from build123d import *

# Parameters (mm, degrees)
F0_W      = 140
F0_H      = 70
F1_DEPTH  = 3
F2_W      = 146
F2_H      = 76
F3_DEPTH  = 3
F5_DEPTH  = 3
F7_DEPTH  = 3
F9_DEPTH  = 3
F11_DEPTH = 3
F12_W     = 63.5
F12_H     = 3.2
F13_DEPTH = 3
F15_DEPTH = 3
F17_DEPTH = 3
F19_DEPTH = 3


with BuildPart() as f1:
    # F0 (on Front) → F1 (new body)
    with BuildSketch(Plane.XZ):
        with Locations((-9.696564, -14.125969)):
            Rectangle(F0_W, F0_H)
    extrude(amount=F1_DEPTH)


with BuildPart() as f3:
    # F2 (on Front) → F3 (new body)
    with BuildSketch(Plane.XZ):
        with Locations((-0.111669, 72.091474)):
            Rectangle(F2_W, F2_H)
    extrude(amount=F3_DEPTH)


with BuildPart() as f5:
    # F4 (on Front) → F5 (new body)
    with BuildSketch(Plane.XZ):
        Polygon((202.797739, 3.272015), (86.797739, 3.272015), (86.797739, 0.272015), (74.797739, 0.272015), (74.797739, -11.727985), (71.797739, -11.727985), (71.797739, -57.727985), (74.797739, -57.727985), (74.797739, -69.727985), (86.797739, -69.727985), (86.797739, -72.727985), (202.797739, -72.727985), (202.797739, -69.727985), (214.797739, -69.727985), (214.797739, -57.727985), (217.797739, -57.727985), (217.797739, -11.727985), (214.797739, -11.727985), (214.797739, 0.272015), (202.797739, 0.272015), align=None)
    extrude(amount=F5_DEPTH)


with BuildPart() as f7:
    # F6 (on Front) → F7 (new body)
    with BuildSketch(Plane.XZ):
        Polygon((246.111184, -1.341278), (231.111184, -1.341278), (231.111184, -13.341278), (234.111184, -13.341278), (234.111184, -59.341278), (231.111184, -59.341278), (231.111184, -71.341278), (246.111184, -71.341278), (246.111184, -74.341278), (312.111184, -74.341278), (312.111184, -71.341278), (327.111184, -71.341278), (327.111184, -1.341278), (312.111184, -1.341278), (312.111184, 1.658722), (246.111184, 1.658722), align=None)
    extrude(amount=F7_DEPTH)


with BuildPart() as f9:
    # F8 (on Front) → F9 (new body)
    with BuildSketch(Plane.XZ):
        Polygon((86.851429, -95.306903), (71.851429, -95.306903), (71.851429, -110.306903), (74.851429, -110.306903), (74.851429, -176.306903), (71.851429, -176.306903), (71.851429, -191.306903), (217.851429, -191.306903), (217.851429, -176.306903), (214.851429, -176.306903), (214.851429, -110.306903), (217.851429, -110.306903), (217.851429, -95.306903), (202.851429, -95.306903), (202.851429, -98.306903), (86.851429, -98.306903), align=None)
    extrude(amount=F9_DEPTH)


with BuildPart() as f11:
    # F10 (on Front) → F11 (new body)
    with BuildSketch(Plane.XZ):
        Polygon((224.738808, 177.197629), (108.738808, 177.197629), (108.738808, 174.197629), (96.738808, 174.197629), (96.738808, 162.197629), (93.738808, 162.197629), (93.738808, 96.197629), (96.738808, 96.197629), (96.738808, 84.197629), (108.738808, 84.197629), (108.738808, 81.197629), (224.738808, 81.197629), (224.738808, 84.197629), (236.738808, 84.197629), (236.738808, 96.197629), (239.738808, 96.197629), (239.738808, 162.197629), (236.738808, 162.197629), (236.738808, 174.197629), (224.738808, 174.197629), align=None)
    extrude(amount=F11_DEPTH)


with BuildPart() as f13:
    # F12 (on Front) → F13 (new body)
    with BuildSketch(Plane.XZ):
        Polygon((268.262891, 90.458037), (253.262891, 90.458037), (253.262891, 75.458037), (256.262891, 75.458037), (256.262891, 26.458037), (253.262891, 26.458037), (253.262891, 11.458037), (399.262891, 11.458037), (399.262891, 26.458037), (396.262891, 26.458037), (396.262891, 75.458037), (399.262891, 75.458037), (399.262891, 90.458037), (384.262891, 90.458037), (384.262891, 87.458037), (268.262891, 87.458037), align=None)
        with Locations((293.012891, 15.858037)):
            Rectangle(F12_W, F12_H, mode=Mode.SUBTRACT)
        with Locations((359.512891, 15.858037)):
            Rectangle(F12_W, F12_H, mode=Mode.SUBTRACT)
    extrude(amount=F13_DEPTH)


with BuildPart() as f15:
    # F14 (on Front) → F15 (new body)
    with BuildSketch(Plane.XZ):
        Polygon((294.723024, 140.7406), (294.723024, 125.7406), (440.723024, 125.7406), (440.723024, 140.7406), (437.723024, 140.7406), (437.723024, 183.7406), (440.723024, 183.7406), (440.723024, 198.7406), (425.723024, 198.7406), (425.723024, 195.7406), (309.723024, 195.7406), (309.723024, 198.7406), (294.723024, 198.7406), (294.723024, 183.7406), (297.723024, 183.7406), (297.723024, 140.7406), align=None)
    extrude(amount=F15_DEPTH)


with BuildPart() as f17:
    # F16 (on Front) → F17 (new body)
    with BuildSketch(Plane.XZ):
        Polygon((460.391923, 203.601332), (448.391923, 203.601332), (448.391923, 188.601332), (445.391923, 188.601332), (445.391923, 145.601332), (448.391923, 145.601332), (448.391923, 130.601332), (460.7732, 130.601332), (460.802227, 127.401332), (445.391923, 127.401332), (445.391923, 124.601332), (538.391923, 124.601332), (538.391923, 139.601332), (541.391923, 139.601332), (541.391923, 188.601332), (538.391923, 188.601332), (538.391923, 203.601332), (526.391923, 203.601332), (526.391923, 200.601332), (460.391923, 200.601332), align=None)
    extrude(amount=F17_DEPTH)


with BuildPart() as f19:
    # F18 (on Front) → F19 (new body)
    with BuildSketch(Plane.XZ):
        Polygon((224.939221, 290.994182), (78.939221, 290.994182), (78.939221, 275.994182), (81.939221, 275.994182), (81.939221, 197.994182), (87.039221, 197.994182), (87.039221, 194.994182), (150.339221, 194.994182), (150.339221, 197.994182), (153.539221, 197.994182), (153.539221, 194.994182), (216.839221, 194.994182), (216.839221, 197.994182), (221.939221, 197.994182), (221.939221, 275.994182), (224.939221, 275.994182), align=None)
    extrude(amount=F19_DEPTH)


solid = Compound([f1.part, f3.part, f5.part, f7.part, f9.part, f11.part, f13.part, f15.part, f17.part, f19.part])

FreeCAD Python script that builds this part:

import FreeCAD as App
import Part
import Sketcher


def add_polygon(sketch, points):
    """Adds a closed chain of lines whose ends are joined by coincident constraints."""
    first, n = sketch.GeometryCount, len(points)
    for a, b in zip(points, points[1:] + points[:1]):
        sketch.addGeometry(Part.LineSegment(App.Vector(*a, 0), App.Vector(*b, 0)), False)
    for i in range(n):
        sketch.addConstraint(Sketcher.Constraint("Coincident", first + i, 2, first + (i + 1) % n, 1))

doc = App.newDocument("Part")
body = doc.addObject("PartDesign::Body", "Body")

# Sketch on XZ plane
sketch1 = body.newObject("Sketcher::SketchObject", "Sketch")
sketch1.AttachmentSupport = (doc.getObject("XZ_Plane"), [""])
sketch1.MapMode = "FlatFace"
add_polygon(sketch1, [(-80, 21), (-80, -49), (60, -49), (60, 21)])  # lines 0-3
sketch1.addConstraint([
    Sketcher.Constraint("Vertical", 0),
    Sketcher.Constraint("Horizontal", 1),
    Sketcher.Constraint("Vertical", 2),
    Sketcher.Constraint("Horizontal", 3),
    Sketcher.Constraint("DistanceX", 1, 1, 1, 2, 140.0),
    Sketcher.Constraint("DistanceY", 0, 2, 0, 1, 70.0),
    Sketcher.Constraint("DistanceY", 0, 2, -1, 1, 49.125969),
    Sketcher.Constraint("DistanceX", 0, 2, -1, 1, 79.696564),
])
pad1 = body.newObject("PartDesign::Pad", "Pad")
pad1.Profile = sketch1
pad1.Length = 3
body2 = doc.addObject("PartDesign::Body", "Body001")

# Sketch on XZ plane
sketch2 = body2.newObject("Sketcher::SketchObject", "Sketch001")
sketch2.AttachmentSupport = (doc.getObject("XZ_Plane001"), [""])
sketch2.MapMode = "FlatFace"
add_polygon(sketch2, [(-73, 110), (-73, 34), (73, 34), (73, 110)])  # lines 0-3
sketch2.addConstraint([
    Sketcher.Constraint("Vertical", 0),
    Sketcher.Constraint("Horizontal", 1),
    Sketcher.Constraint("Vertical", 2),
    Sketcher.Constraint("Horizontal", 3),
    Sketcher.Constraint("DistanceX", 1, 1, 1, 2, 146.0),
    Sketcher.Constraint("DistanceY", 0, 2, 0, 1, 76.0),
    Sketcher.Constraint("DistanceX", 0, 2, -1, 1, 73.111669),
    Sketcher.Constraint("DistanceY", -1, 1, 0, 2, 34.091474),
])
pad2 = body2.newObject("PartDesign::Pad", "Pad001")
pad2.Profile = sketch2
pad2.Length = 3
body3 = doc.addObject("PartDesign::Body", "Body002")

# Sketch on XZ plane
sketch3 = body3.newObject("Sketcher::SketchObject", "Sketch002")
sketch3.AttachmentSupport = (doc.getObject("XZ_Plane002"), [""])
sketch3.MapMode = "FlatFace"
add_polygon(sketch3, [(202.8, 3.3), (86.8, 3.3), (86.8, 0.3), (74.8, 0.3), (74.8, -11.7), (71.8, -11.7), (71.8, -57.7), (74.8, -57.7), (74.8, -69.7), (86.8, -69.7), (86.8, -72.7), (202.8, -72.7), (202.8, -69.7), (214.8, -69.7), (214.8, -57.7), (217.8, -57.7), (217.8, -11.7), (214.8, -11.7), (214.8, 0.3), (202.8, 0.3)])  # lines 0-19
sketch3.addConstraint([
    Sketcher.Constraint("Horizontal", 0),
    Sketcher.Constraint("Vertical", 1),
    Sketcher.Constraint("Horizontal", 2),
    Sketcher.Constraint("Vertical", 3),
    Sketcher.Constraint("Horizontal", 4),
    Sketcher.Constraint("Vertical", 5),
    Sketcher.Constraint("Horizontal", 6),
    Sketcher.Constraint("Vertical", 7),
    Sketcher.Constraint("Horizontal", 8),
    Sketcher.Constraint("Vertical", 9),
    Sketcher.Constraint("Horizontal", 10),
    Sketcher.Constraint("Vertical", 11),
    Sketcher.Constraint("Horizontal", 12),
    Sketcher.Constraint("Vertical", 13),
    Sketcher.Constraint("Horizontal", 14),
    Sketcher.Constraint("Vertical", 15),
    Sketcher.Constraint("Horizontal", 16),
    Sketcher.Constraint("Vertical", 17),
    Sketcher.Constraint("Horizontal", 18),
    Sketcher.Constraint("Vertical", 19),
    Sketcher.Constraint("Horizontal", 8, 2, 11, 2),
    Sketcher.Constraint("Horizontal", 6, 2, 13, 2),
    Sketcher.Constraint("Horizontal", 4, 2, 15, 2),
    Sketcher.Constraint("Horizontal", 2, 2, 17, 2),
    Sketcher.Constraint("Vertical", 3, 2, 6, 2),
    Sketcher.Constraint("Vertical", 1, 2, 8, 2),
    Sketcher.Constraint("Vertical", 13, 2, 16, 2),
    Sketcher.Constraint("Vertical", 11, 2, 18, 2),
    Sketcher.Constraint("Equal", 8, 12),
    Sketcher.Constraint("Equal", 6, 14),
    Sketcher.Constraint("Equal", 16, 1),
    Sketcher.Constraint("Equal", 18, 3),
    Sketcher.Constraint("Equal", 3, 7),
    Sketcher.Constraint("Equal", 1, 9),
    Sketcher.Constraint("DistanceX", 0, 2, 0, 1, 116.0),
    Sketcher.Constraint("DistanceX", 2, 2, 2, 1, 12.0),
    Sketcher.Constraint("DistanceX", 4, 2, 4, 1, 3.0),
    Sketcher.Constraint("DistanceY", 5, 2, 5, 1, 46.0),
    Sketcher.Constraint("DistanceX", -1, 1, 0, 2, 86.797739),
    Sketcher.Constraint("DistanceY", -1, 1, 0, 2, 3.272015),
])
pad3 = body3.newObject("PartDesign::Pad", "Pad002")
pad3.Profile = sketch3
pad3.Length = 3
body4 = doc.addObject("PartDesign::Body", "Body003")

# Sketch on XZ plane
sketch4 = body4.newObject("Sketcher::SketchObject", "Sketch003")
sketch4.AttachmentSupport = (doc.getObject("XZ_Plane003"), [""])
sketch4.MapMode = "FlatFace"
add_polygon(sketch4, [(246.1, -1.3), (231.1, -1.3), (231.1, -13.3), (234.1, -13.3), (234.1, -59.3), (231.1, -59.3), (231.1, -71.3), (246.1, -71.3), (246.1, -74.3), (312.1, -74.3), (312.1, -71.3), (327.1, -71.3), (327.1, -1.3), (312.1, -1.3), (312.1, 1.7), (246.1, 1.7)])  # lines 0-15
sketch4.addConstraint([
    Sketcher.Constraint("Horizontal", 0),
    Sketcher.Constraint("Vertical", 1),
    Sketcher.Constraint("Horizontal", 2),
    Sketcher.Constraint("Vertical", 3),
    Sketcher.Constraint("Horizontal", 4),
    Sketcher.Constraint("Vertical", 5),
    Sketcher.Constraint("Horizontal", 6),
    Sketcher.Constraint("Vertical", 7),
    Sketcher.Constraint("Horizontal", 8),
    Sketcher.Constraint("Vertical", 9),
    Sketcher.Constraint("Horizontal", 10),
    Sketcher.Constraint("Vertical", 11),
    Sketcher.Constraint("Horizontal", 12),
    Sketcher.Constraint("Vertical", 13),
    Sketcher.Constraint("Horizontal", 14),
    Sketcher.Constraint("Vertical", 15),
    Sketcher.Constraint("Horizontal", 6, 2, 9, 2),
    Sketcher.Constraint("Horizontal", 0, 2, 11, 2),
    Sketcher.Constraint("Vertical", 1, 2, 4, 2),
    Sketcher.Constraint("Vertical", 9, 2, 12, 2),
    Sketcher.Constraint("Vertical", 7, 2, 14, 2),
    Sketcher.Constraint("Equal", 6, 10),
    Sketcher.Constraint("Equal", 1, 5),
    Sketcher.Constraint("Equal", 4, 7),
    Sketcher.Constraint("Equal", 9, 13),
    Sketcher.Constraint("DistanceX", 0, 2, 0, 1, 15.0),
    Sketcher.Constraint("DistanceX", 2, 1, 2, 2, 3.0),
    Sketcher.Constraint("DistanceX", 8, 1, 8, 2, 66.0),
    Sketcher.Constraint("DistanceY", 1, 2, 1, 1, 12.0),
    Sketcher.Constraint("DistanceY", 3, 2, 3, 1, 46.0),
    Sketcher.Constraint("DistanceY", 1, 2, -1, 1, 13.341278),
    Sketcher.Constraint("DistanceX", -1, 1, 0, 2, 231.111184),
])
pad4 = body4.newObject("PartDesign::Pad", "Pad003")
pad4.Profile = sketch4
pad4.Length = 3
body5 = doc.addObject("PartDesign::Body", "Body004")

# Sketch on XZ plane
sketch5 = body5.newObject("Sketcher::SketchObject", "Sketch004")
sketch5.AttachmentSupport = (doc.getObject("XZ_Plane004"), [""])
sketch5.MapMode = "FlatFace"
add_polygon(sketch5, [(86.9, -95.3), (71.9, -95.3), (71.9, -110.3), (74.9, -110.3), (74.9, -176.3), (71.9, -176.3), (71.9, -191.3), (217.9, -191.3), (217.9, -176.3), (214.9, -176.3), (214.9, -110.3), (217.9, -110.3), (217.9, -95.3), (202.9, -95.3), (202.9, -98.3), (86.9, -98.3)])  # lines 0-15
sketch5.addConstraint([
    Sketcher.Constraint("Horizontal", 0),
    Sketcher.Constraint("Vertical", 1),
    Sketcher.Constraint("Horizontal", 2),
    Sketcher.Constraint("Vertical", 3),
    Sketcher.Constraint("Horizontal", 4),
    Sketcher.Constraint("Vertical", 5),
    Sketcher.Constraint("Horizontal", 6),
    Sketcher.Constraint("Vertical", 7),
    Sketcher.Constraint("Horizontal", 8),
    Sketcher.Constraint("Vertical", 9),
    Sketcher.Constraint("Horizontal", 10),
    Sketcher.Constraint("Vertical", 11),
    Sketcher.Constraint("Horizontal", 12),
    Sketcher.Constraint("Vertical", 13),
    Sketcher.Constraint("Horizontal", 14),
    Sketcher.Constraint("Vertical", 15),
    Sketcher.Constraint("Horizontal", 4, 2, 7, 2),
    Sketcher.Constraint("Horizontal", 2, 2, 9, 2),
    Sketcher.Constraint("Horizontal", 0, 2, 11, 2),
    Sketcher.Constraint("Vertical", 1, 2, 4, 2),
    Sketcher.Constraint("Vertical", 7, 2, 10, 2),
    Sketcher.Constraint("Equal", 4, 8),
    Sketcher.Constraint("Equal", 0, 12),
    Sketcher.Constraint("Equal", 12, 1),
    Sketcher.Constraint("Equal", 1, 5),
    Sketcher.Constraint("Equal", 10, 13),
    Sketcher.Constraint("DistanceX", 0, 2, 0, 1, 15.0),
    Sketcher.Constraint("DistanceX", 2, 1, 2, 2, 3.0),
    Sketcher.Constraint("DistanceX", 6, 1, 6, 2, 146.0),
    Sketcher.Constraint("DistanceY", 3, 2, 3, 1, 66.0),
    Sketcher.Constraint("DistanceX", -1, 1, 0, 2, 71.851429),
    Sketcher.Constraint("DistanceY", 0, 2, -1, 1, 95.306903),
])
pad5 = body5.newObject("PartDesign::Pad", "Pad004")
pad5.Profile = sketch5
pad5.Length = 3
body6 = doc.addObject("PartDesign::Body", "Body005")

# Sketch on XZ plane
sketch6 = body6.newObject("Sketcher::SketchObject", "Sketch005")
sketch6.AttachmentSupport = (doc.getObject("XZ_Plane005"), [""])
sketch6.MapMode = "FlatFace"
add_polygon(sketch6, [(224.7, 177.2), (108.7, 177.2), (108.7, 174.2), (96.7, 174.2), (96.7, 162.2), (93.7, 162.2), (93.7, 96.2), (96.7, 96.2), (96.7, 84.2), (108.7, 84.2), (108.7, 81.2), (224.7, 81.2), (224.7, 84.2), (236.7, 84.2), (236.7, 96.2), (239.7, 96.2), (239.7, 162.2), (236.7, 162.2), (236.7, 174.2), (224.7, 174.2)])  # lines 0-19
sketch6.addConstraint([
    Sketcher.Constraint("Horizontal", 0),
    Sketcher.Constraint("Vertical", 1),
    Sketcher.Constraint("Horizontal", 2),
    Sketcher.Constraint("Vertical", 3),
    Sketcher.Constraint("Horizontal", 4),
    Sketcher.Constraint("Vertical", 5),
    Sketcher.Constraint("Horizontal", 6),
    Sketcher.Constraint("Vertical", 7),
    Sketcher.Constraint("Horizontal", 8),
    Sketcher.Constraint("Vertical", 9),
    Sketcher.Constraint("Horizontal", 10),
    Sketcher.Constraint("Vertical", 11),
    Sketcher.Constraint("Horizontal", 12),
    Sketcher.Constraint("Vertical", 13),
    Sketcher.Constraint("Horizontal", 14),
    Sketcher.Constraint("Vertical", 15),
    Sketcher.Constraint("Horizontal", 16),
    Sketcher.Constraint("Vertical", 17),
    Sketcher.Constraint("Horizontal", 18),
    Sketcher.Constraint("Vertical", 19),
    Sketcher.Constraint("Horizontal", 8, 2, 11, 2),
    Sketcher.Constraint("Horizontal", 6, 2, 13, 2),
    Sketcher.Constraint("Horizontal", 4, 2, 15, 2),
    Sketcher.Constraint("Horizontal", 2, 2, 17, 2),
    Sketcher.Constraint("Vertical", 3, 2, 6, 2),
    Sketcher.Constraint("Vertical", 1, 2, 8, 2),
    Sketcher.Constraint("Vertical", 13, 2, 16, 2),
    Sketcher.Constraint("Vertical", 11, 2, 18, 2),
    Sketcher.Constraint("Equal", 8, 12),
    Sketcher.Constraint("Equal", 6, 14),
    Sketcher.Constraint("Equal", 16, 1),
    Sketcher.Constraint("Equal", 18, 3),
    Sketcher.Constraint("Equal", 3, 7),
    Sketcher.Constraint("Equal", 1, 9),
    Sketcher.Constraint("DistanceX", 0, 2, 0, 1, 116.0),
    Sketcher.Constraint("DistanceX", 2, 2, 2, 1, 12.0),
    Sketcher.Constraint("DistanceX", 4, 2, 4, 1, 3.0),
    Sketcher.Constraint("DistanceY", 5, 2, 5, 1, 66.0),
    Sketcher.Constraint("DistanceX", -1, 1, 0, 2, 108.738808),
    Sketcher.Constraint("DistanceY", -1, 1, 0, 2, 177.197629),
])
pad6 = body6.newObject("PartDesign::Pad", "Pad005")
pad6.Profile = sketch6
pad6.Length = 3
body7 = doc.addObject("PartDesign::Body", "Body006")

# Sketch on XZ plane
sketch7 = body7.newObject("Sketcher::SketchObject", "Sketch006")
sketch7.AttachmentSupport = (doc.getObject("XZ_Plane006"), [""])
sketch7.MapMode = "FlatFace"
add_polygon(sketch7, [(268.3, 90.5), (253.3, 90.5), (253.3, 75.5), (256.3, 75.5), (256.3, 26.5), (253.3, 26.5), (253.3, 11.5), (399.3, 11.5), (399.3, 26.5), (396.3, 26.5), (396.3, 75.5), (399.3, 75.5), (399.3, 90.5), (384.3, 90.5), (384.3, 87.5), (268.3, 87.5)])  # lines 0-15
add_polygon(sketch7, [(324.8, 14.3), (261.3, 14.3), (261.3, 17.5), (324.8, 17.5)])  # lines 16-19
add_polygon(sketch7, [(391.3, 14.3), (327.8, 14.3), (327.8, 17.5), (391.3, 17.5)])  # lines 20-23
sketch7.addConstraint([
    Sketcher.Constraint("Horizontal", 0),
    Sketcher.Constraint("Vertical", 1),
    Sketcher.Constraint("Horizontal", 2),
    Sketcher.Constraint("Vertical", 3),
    Sketcher.Constraint("Horizontal", 4),
    Sketcher.Constraint("Vertical", 5),
    Sketcher.Constraint("Horizontal", 6),
    Sketcher.Constraint("Vertical", 7),
    Sketcher.Constraint("Horizontal", 8),
    Sketcher.Constraint("Vertical", 9),
    Sketcher.Constraint("Horizontal", 10),
    Sketcher.Constraint("Vertical", 11),
    Sketcher.Constraint("Horizontal", 12),
    Sketcher.Constraint("Vertical", 13),
    Sketcher.Constraint("Horizontal", 14),
    Sketcher.Constraint("Vertical", 15),
    Sketcher.Constraint("Horizontal", 16),
    Sketcher.Constraint("Vertical", 17),
    Sketcher.Constraint("Horizontal", 18),
    Sketcher.Constraint("Vertical", 19),
    Sketcher.Constraint("Horizontal", 20),
    Sketcher.Constraint("Vertical", 21),
    Sketcher.Constraint("Horizontal", 22),
    Sketcher.Constraint("Vertical", 23),
    Sketcher.Constraint("Horizontal", 4, 2, 7, 2),
    Sketcher.Constraint("Horizontal", 2, 2, 9, 2),
    Sketcher.Constraint("Horizontal", 0, 2, 11, 2),
    Sketcher.Constraint("Horizontal", 19, 2, 20, 2),
    Sketcher.Constraint("Horizontal", 18, 2, 21, 2),
    Sketcher.Constraint("Vertical", 1, 2, 4, 2),
    Sketcher.Constraint("Vertical", 7, 2, 10, 2),
    Sketcher.Constraint("Equal", 4, 8),
    Sketcher.Constraint("Equal", 0, 12),
    Sketcher.Constraint("Equal", 18, 20),
    Sketcher.Constraint("Equal", 12, 1),
    Sketcher.Constraint("Equal", 1, 5),
    Sketcher.Constraint("Equal", 10, 13),
    Sketcher.Constraint("DistanceX", 0, 2, 0, 1, 15.0),
    Sketcher.Constraint("DistanceX", 2, 1, 2, 2, 3.0),
    Sketcher.Constraint("DistanceX", 6, 1, 6, 2, 146.0),
    Sketcher.Constraint("DistanceY", 3, 2, 3, 1, 49.0),
    Sketcher.Constraint("DistanceX", 16, 2, 16, 1, 63.5),
    Sketcher.Constraint("DistanceY", 17, 1, 17, 2, 3.2),
    Sketcher.Constraint("DistanceX", 5, 2, 16, 2, 8.0),
    Sketcher.Constraint("DistanceY", 5, 2, 17, 2, 6.0),
    Sketcher.Constraint("DistanceX", 19, 2, 20, 2, 3.0),
    Sketcher.Constraint("DistanceX", -1, 1, 0, 2, 253.262891),
    Sketcher.Constraint("DistanceY", -1, 1, 0, 2, 90.458037),
])
pad7 = body7.newObject("PartDesign::Pad", "Pad006")
pad7.Profile = sketch7
pad7.Length = 3
body8 = doc.addObject("PartDesign::Body", "Body007")

# Sketch on XZ plane
sketch8 = body8.newObject("Sketcher::SketchObject", "Sketch007")
sketch8.AttachmentSupport = (doc.getObject("XZ_Plane007"), [""])
sketch8.MapMode = "FlatFace"
add_polygon(sketch8, [(294.7, 140.7), (294.7, 125.7), (440.7, 125.7), (440.7, 140.7), (437.7, 140.7), (437.7, 183.7), (440.7, 183.7), (440.7, 198.7), (425.7, 198.7), (425.7, 195.7), (309.7, 195.7), (309.7, 198.7), (294.7, 198.7), (294.7, 183.7), (297.7, 183.7), (297.7, 140.7)])  # lines 0-15
sketch8.addConstraint([
    Sketcher.Constraint("Vertical", 0),
    Sketcher.Constraint("Horizontal", 1),
    Sketcher.Constraint("Vertical", 2),
    Sketcher.Constraint("Horizontal", 3),
    Sketcher.Constraint("Vertical", 4),
    Sketcher.Constraint("Horizontal", 5),
    Sketcher.Constraint("Vertical", 6),
    Sketcher.Constraint("Horizontal", 7),
    Sketcher.Constraint("Vertical", 8),
    Sketcher.Constraint("Horizontal", 9),
    Sketcher.Constraint("Vertical", 10),
    Sketcher.Constraint("Horizontal", 11),
    Sketcher.Constraint("Vertical", 12),
    Sketcher.Constraint("Horizontal", 13),
    Sketcher.Constraint("Vertical", 14),
    Sketcher.Constraint("Horizontal", 15),
    Sketcher.Constraint("Horizontal", 7, 2, 10, 2),
    Sketcher.Constraint("Horizontal", 5, 2, 12, 2),
    Sketcher.Constraint("Horizontal", 3, 2, 14, 2),
    Sketcher.Constraint("Vertical", 2, 2, 5, 2),
    Sketcher.Constraint("Vertical", 0, 2, 11, 2),
    Sketcher.Constraint("Equal", 7, 11),
    Sketcher.Constraint("Equal", 5, 13),
    Sketcher.Constraint("Equal", 11, 0),
    Sketcher.Constraint("Equal", 2, 6),
    Sketcher.Constraint("Equal", 15, 8),
    Sketcher.Constraint("DistanceX", 1, 1, 1, 2, 146.0),
    Sketcher.Constraint("DistanceX", 3, 2, 3, 1, 3.0),
    Sketcher.Constraint("DistanceX", 7, 2, 7, 1, 15.0),
    Sketcher.Constraint("DistanceY", 4, 1, 4, 2, 43.0),
    Sketcher.Constraint("DistanceY", -1, 1, 0, 2, 125.7406),
    Sketcher.Constraint("DistanceX", -1, 1, 0, 2, 294.723024),
])
pad8 = body8.newObject("PartDesign::Pad", "Pad007")
pad8.Profile = sketch8
pad8.Length = 3
body9 = doc.addObject("PartDesign::Body", "Body008")

# Sketch on XZ plane
sketch9 = body9.newObject("Sketcher::SketchObject", "Sketch008")
sketch9.AttachmentSupport = (doc.getObject("XZ_Plane008"), [""])
sketch9.MapMode = "FlatFace"
add_polygon(sketch9, [(460.391923, 203.601332), (448.391923, 203.601332), (448.391923, 188.601332), (445.391923, 188.601332), (445.391923, 145.601332), (448.391923, 145.601332), (448.391923, 130.601332), (460.7732, 130.601332), (460.802227, 127.401332), (445.391923, 127.401332), (445.391923, 124.601332), (538.391923, 124.601332), (538.391923, 139.601332), (541.391923, 139.601332), (541.391923, 188.601332), (538.391923, 188.601332), (538.391923, 203.601332), (526.391923, 203.601332), (526.391923, 200.601332), (460.391923, 200.601332)])  # lines 0-19
sketch9.addConstraint([
    Sketcher.Constraint("Horizontal", 0),
    Sketcher.Constraint("Vertical", 1),
    Sketcher.Constraint("Horizontal", 2),
    Sketcher.Constraint("Vertical", 3),
    Sketcher.Constraint("Horizontal", 4),
    Sketcher.Constraint("Vertical", 5),
    Sketcher.Constraint("Horizontal", 6),
    Sketcher.Constraint("Horizontal", 8),
    Sketcher.Constraint("Vertical", 9),
    Sketcher.Constraint("Horizontal", 10),
    Sketcher.Constraint("Vertical", 11),
    Sketcher.Constraint("Horizontal", 12),
    Sketcher.Constraint("Vertical", 13),
    Sketcher.Constraint("Horizontal", 14),
    Sketcher.Constraint("Vertical", 15),
    Sketcher.Constraint("Horizontal", 16),
    Sketcher.Constraint("Vertical", 17),
    Sketcher.Constraint("Horizontal", 18),
    Sketcher.Constraint("Vertical", 19),
    Sketcher.Constraint("Horizontal", 2, 2, 13, 2),
    Sketcher.Constraint("Horizontal", 0, 2, 15, 2),
    Sketcher.Constraint("Vertical", 1, 2, 4, 2),
    Sketcher.Constraint("Vertical", 3, 2, 8, 2),
    Sketcher.Constraint("Vertical", 11, 2, 14, 2),
    Sketcher.Constraint("Equal", 4, 12),
    Sketcher.Constraint("Equal", 0, 16),
    Sketcher.Constraint("Equal", 1, 5),
    Sketcher.Constraint("Equal", 5, 11),
    Sketcher.Constraint("Equal", 14, 17),
    Sketcher.Constraint("DistanceX", 0, 2, 0, 1, 12.0),
    Sketcher.Constraint("DistanceX", 2, 2, 2, 1, 3.0),
    Sketcher.Constraint("DistanceX", 10, 1, 10, 2, 93.0),
    Sketcher.Constraint("DistanceY", 1, 2, 1, 1, 15.0),
    Sketcher.Constraint("DistanceY", 3, 2, 3, 1, 43.0),
    Sketcher.Constraint("DistanceY", 13, 1, 13, 2, 49.0),
    Sketcher.Constraint("DistanceY", 9, 2, 9, 1, 2.8),
    Sketcher.Constraint("DistanceX", -1, 1, 6, 2, 460.7732),
    Sketcher.Constraint("Distance", 7, 3.200132),
    Sketcher.Constraint("DistanceX", 6, 1, 6, 2, 12.381277),
    Sketcher.Constraint("DistanceY", -1, 1, 7, 2, 127.401332),
])
pad9 = body9.newObject("PartDesign::Pad", "Pad008")
pad9.Profile = sketch9
pad9.Length = 3
body10 = doc.addObject("PartDesign::Body", "Body009")

# Sketch on XZ plane
sketch10 = body10.newObject("Sketcher::SketchObject", "Sketch009")
sketch10.AttachmentSupport = (doc.getObject("XZ_Plane009"), [""])
sketch10.MapMode = "FlatFace"
add_polygon(sketch10, [(224.9, 291), (78.9, 291), (78.9, 276), (81.9, 276), (81.9, 198), (87, 198), (87, 195), (150.3, 195), (150.3, 198), (153.5, 198), (153.5, 195), (216.8, 195), (216.8, 198), (221.9, 198), (221.9, 276), (224.9, 276)])  # lines 0-15
sketch10.addConstraint([
    Sketcher.Constraint("Horizontal", 0),
    Sketcher.Constraint("Vertical", 1),
    Sketcher.Constraint("Horizontal", 2),
    Sketcher.Constraint("Vertical", 3),
    Sketcher.Constraint("Horizontal", 4),
    Sketcher.Constraint("Vertical", 5),
    Sketcher.Constraint("Horizontal", 6),
    Sketcher.Constraint("Vertical", 7),
    Sketcher.Constraint("Horizontal", 8),
    Sketcher.Constraint("Vertical", 9),
    Sketcher.Constraint("Horizontal", 10),
    Sketcher.Constraint("Vertical", 11),
    Sketcher.Constraint("Horizontal", 12),
    Sketcher.Constraint("Vertical", 13),
    Sketcher.Constraint("Horizontal", 14),
    Sketcher.Constraint("Vertical", 15),
    Sketcher.Constraint("Horizontal", 4, 2, 7, 2),
    Sketcher.Constraint("Horizontal", 6, 2, 9, 2),
    Sketcher.Constraint("Horizontal", 8, 2, 11, 2),
    Sketcher.Constraint("Horizontal", 2, 2, 13, 2),
    Sketcher.Constraint("Equal", 6, 10),
    Sketcher.Constraint("Equal", 4, 12),
    Sketcher.Constraint("Equal", 2, 14),
    Sketcher.Constraint("Equal", 14, 5),
    Sketcher.Constraint("DistanceX", 0, 2, 0, 1, 146.0),
    Sketcher.Constraint("DistanceX", 2, 1, 2, 2, 3.0),
    Sketcher.Constraint("DistanceY", 1, 2, 1, 1, 15.0),
    Sketcher.Constraint("DistanceY", 3, 2, 3, 1, 78.0),
    Sketcher.Constraint("DistanceX", 4, 1, 4, 2, 5.1),
    Sketcher.Constraint("DistanceX", 6, 1, 6, 2, 63.3),
    Sketcher.Constraint("DistanceX", -1, 1, 0, 2, 78.939221),
    Sketcher.Constraint("DistanceY", -1, 1, 3, 2, 197.994182),
])
pad10 = body10.newObject("PartDesign::Pad", "Pad009")
pad10.Profile = sketch10
pad10.Length = 3

doc.recompute()
